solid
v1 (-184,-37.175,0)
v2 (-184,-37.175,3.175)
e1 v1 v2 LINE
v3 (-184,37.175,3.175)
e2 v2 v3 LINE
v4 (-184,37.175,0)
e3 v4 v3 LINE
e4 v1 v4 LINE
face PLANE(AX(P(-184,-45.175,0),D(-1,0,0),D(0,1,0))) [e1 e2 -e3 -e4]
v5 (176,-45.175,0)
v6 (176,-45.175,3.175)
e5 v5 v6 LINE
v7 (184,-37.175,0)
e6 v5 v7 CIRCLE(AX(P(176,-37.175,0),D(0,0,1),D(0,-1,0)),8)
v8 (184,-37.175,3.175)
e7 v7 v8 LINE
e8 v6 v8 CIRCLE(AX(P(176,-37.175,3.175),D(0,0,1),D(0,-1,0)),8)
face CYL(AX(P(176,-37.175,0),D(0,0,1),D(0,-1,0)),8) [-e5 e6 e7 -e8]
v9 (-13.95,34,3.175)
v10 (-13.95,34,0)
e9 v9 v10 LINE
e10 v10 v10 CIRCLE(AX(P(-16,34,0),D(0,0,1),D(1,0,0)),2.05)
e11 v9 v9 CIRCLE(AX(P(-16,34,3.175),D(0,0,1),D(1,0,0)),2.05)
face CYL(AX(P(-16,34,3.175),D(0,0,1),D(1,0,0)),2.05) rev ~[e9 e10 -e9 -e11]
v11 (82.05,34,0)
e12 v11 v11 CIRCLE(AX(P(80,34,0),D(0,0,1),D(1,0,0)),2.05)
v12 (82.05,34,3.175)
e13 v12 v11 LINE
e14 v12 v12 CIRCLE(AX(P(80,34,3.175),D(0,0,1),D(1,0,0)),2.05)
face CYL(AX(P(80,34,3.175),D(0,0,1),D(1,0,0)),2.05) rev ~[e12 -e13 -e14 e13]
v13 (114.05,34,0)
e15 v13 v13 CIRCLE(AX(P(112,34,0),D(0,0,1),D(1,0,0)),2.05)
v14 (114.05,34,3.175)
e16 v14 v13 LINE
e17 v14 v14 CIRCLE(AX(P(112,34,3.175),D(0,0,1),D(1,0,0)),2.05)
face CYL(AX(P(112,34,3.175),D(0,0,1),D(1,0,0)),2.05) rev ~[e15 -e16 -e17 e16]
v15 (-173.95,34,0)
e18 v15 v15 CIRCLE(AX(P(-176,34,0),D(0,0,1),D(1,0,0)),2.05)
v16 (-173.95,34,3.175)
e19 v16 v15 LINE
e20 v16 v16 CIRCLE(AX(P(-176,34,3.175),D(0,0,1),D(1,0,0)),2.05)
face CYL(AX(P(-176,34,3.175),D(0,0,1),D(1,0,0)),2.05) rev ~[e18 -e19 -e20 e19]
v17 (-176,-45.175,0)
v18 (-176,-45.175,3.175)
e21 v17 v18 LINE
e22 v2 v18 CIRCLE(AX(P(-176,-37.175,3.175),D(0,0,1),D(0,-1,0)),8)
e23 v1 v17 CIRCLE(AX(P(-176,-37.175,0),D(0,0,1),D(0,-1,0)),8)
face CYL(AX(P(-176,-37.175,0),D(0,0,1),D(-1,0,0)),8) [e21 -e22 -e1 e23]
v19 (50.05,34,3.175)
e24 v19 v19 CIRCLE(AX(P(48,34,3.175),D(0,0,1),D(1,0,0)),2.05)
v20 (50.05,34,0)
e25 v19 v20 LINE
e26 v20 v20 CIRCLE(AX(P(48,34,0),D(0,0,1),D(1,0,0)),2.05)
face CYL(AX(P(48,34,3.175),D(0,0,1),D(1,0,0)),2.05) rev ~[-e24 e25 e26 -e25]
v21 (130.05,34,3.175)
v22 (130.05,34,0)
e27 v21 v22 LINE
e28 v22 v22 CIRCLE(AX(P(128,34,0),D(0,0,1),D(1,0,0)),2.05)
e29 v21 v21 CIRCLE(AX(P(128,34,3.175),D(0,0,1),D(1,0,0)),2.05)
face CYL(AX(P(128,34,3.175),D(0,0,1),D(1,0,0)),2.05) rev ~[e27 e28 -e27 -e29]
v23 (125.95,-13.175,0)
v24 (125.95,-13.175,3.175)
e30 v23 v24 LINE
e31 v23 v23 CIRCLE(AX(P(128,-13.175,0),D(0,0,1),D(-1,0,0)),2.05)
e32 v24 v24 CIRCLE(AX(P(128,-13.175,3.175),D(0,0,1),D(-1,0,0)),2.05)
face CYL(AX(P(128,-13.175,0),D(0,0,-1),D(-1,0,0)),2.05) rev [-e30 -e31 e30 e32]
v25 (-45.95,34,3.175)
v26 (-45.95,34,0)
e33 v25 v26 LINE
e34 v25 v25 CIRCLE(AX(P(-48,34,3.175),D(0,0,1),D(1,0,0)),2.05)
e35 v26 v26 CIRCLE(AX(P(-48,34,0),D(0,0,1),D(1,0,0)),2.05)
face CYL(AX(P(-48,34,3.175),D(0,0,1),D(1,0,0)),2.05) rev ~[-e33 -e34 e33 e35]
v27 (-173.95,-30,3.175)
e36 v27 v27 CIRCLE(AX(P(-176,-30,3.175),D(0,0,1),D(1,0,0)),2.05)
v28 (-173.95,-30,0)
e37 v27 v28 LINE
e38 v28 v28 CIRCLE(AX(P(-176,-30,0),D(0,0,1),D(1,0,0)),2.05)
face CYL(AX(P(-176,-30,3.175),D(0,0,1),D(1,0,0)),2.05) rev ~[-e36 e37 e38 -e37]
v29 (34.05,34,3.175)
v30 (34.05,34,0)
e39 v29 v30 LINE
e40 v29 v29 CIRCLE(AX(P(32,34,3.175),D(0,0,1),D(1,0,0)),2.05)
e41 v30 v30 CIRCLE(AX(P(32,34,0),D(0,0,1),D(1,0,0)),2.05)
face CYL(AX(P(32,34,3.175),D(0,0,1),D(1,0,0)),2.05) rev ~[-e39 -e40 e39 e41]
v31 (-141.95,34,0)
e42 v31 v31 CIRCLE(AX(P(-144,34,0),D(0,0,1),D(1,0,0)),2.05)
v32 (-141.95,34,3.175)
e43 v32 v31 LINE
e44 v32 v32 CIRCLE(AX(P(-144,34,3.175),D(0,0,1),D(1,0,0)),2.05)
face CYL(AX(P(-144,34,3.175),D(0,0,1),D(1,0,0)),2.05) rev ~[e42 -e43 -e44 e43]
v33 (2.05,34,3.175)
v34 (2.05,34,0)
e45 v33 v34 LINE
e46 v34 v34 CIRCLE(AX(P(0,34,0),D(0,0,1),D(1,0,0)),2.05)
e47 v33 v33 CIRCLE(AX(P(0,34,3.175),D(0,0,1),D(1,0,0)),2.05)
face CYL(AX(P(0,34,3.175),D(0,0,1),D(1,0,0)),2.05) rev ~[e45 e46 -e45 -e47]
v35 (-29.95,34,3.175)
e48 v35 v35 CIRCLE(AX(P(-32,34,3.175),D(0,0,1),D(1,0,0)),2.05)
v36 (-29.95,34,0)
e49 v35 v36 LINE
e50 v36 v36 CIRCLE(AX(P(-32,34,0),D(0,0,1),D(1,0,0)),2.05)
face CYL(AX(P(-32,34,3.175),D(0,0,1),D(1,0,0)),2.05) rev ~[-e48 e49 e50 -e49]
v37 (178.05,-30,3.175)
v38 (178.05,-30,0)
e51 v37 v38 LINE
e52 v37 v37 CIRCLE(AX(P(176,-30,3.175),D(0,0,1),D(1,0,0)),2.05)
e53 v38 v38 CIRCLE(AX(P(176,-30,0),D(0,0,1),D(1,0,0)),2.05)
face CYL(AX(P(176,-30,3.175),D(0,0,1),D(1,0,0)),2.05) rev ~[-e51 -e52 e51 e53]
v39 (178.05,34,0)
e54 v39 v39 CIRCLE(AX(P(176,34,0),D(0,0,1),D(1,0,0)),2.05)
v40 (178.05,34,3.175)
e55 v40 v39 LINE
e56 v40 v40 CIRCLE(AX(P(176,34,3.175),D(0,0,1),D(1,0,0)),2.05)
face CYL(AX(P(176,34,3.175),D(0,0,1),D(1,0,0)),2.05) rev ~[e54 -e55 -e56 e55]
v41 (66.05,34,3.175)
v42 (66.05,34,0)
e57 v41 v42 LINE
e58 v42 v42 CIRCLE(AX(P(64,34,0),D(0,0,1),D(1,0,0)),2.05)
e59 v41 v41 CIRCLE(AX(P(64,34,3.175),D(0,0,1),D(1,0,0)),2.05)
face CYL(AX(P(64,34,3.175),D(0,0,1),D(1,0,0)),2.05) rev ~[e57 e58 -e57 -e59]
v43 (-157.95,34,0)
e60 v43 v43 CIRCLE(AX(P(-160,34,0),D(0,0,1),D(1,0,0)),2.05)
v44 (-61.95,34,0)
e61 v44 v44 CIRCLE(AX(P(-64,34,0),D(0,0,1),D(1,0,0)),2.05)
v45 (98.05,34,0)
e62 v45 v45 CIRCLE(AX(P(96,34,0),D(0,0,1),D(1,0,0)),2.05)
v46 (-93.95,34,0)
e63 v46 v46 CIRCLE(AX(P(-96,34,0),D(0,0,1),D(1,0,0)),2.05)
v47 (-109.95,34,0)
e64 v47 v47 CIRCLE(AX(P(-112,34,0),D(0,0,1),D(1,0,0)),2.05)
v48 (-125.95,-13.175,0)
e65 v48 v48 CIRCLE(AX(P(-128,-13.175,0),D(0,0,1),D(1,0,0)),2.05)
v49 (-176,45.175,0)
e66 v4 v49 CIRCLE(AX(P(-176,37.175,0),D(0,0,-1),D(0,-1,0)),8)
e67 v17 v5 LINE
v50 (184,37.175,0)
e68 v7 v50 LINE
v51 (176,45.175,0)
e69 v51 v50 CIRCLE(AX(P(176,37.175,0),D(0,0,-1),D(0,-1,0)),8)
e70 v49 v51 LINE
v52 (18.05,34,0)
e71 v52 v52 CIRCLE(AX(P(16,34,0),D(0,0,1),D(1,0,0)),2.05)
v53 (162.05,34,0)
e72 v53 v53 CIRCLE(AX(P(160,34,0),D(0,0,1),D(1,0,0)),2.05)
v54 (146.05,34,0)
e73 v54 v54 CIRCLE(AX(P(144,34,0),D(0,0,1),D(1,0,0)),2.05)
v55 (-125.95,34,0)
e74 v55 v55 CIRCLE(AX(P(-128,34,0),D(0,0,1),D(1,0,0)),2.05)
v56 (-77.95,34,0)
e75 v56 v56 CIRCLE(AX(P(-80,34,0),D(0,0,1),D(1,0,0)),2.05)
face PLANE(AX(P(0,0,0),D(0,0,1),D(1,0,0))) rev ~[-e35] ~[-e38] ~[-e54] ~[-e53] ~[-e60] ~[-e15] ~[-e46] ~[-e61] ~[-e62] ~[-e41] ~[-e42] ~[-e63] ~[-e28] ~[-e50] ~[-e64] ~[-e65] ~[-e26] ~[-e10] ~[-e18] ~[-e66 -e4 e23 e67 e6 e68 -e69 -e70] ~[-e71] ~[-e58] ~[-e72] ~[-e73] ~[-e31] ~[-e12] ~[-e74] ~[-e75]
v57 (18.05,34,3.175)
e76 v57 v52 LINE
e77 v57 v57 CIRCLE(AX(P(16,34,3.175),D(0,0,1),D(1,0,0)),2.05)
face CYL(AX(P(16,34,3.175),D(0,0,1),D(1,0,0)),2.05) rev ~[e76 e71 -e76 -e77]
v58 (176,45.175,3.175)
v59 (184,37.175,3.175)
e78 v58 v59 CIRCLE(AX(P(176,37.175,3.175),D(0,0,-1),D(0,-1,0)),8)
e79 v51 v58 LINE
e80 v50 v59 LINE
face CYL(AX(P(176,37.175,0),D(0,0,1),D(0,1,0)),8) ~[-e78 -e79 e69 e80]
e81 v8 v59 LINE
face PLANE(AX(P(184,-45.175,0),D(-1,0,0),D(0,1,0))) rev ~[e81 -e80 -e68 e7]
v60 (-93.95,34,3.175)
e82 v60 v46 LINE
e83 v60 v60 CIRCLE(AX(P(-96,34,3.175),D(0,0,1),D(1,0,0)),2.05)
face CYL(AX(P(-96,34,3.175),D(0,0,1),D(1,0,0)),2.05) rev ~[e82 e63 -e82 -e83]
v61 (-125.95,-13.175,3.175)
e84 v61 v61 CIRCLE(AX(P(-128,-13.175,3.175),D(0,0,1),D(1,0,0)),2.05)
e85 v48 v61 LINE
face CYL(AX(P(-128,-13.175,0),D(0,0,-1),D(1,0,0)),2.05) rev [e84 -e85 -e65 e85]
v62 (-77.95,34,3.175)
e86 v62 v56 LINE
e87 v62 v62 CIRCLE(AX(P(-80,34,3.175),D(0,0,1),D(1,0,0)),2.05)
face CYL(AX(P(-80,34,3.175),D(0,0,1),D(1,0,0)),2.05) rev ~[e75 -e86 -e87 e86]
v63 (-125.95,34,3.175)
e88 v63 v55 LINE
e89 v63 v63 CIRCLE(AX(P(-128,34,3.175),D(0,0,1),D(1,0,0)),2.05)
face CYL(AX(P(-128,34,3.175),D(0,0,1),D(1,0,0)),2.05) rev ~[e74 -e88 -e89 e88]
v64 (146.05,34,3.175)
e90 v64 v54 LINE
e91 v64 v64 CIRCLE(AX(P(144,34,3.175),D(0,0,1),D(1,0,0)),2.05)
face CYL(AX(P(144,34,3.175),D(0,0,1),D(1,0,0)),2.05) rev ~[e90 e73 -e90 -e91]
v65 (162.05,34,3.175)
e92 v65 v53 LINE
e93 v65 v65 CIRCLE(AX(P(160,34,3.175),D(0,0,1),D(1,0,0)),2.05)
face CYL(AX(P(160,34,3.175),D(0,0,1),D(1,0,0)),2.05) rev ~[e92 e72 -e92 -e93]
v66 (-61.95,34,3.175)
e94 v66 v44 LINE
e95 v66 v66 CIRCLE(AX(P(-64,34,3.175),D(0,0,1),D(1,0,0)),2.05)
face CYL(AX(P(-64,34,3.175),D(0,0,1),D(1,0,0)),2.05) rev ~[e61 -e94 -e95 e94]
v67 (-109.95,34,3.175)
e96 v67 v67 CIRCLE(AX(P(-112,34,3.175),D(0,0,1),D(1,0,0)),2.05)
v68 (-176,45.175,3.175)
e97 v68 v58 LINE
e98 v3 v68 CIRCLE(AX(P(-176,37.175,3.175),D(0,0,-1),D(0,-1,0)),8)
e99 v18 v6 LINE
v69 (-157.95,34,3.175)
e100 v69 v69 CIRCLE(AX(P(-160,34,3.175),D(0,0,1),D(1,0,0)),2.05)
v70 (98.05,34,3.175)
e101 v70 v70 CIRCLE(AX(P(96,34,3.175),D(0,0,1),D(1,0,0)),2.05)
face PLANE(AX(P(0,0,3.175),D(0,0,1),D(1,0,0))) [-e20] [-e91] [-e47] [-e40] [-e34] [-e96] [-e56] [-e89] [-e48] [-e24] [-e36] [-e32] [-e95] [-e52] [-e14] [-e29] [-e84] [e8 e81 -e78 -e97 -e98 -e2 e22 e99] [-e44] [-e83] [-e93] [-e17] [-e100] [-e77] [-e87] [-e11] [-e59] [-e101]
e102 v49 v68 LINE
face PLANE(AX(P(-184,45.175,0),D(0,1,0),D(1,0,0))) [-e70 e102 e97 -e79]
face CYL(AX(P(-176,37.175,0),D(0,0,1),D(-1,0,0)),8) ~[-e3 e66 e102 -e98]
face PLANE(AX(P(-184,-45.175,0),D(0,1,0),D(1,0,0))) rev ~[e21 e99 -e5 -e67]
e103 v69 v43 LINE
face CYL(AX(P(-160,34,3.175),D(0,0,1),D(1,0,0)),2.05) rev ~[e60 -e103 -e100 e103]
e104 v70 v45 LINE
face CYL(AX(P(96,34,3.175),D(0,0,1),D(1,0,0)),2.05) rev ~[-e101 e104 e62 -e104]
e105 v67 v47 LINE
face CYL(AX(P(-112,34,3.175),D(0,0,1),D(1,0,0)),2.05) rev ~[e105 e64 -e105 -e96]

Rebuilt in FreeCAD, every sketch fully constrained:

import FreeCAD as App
import Part
import Sketcher


def edges_at(feature, points):
    """Names of the edges that pass closest to the given points."""
    edges = feature.Shape.Edges
    near = lambda p: min(range(len(edges)), key=lambda i: edges[i].distToShape(Part.Vertex(*p))[0])
    return sorted({f"Edge{near(p) + 1}" for p in points})


def add_polygon(sketch, points):
    """Adds a closed chain of lines whose ends are joined by coincident constraints."""
    first, n = sketch.GeometryCount, len(points)
    for a, b in zip(points, points[1:] + points[:1]):
        sketch.addGeometry(Part.LineSegment(App.Vector(*a, 0), App.Vector(*b, 0)), False)
    for i in range(n):
        sketch.addConstraint(Sketcher.Constraint("Coincident", first + i, 2, first + (i + 1) % n, 1))

doc = App.newDocument("Part")
body = doc.addObject("PartDesign::Body", "Body")

# Sketch on XY plane
sketch1 = doc.addObject("Sketcher::SketchObject", "Sketch")
body.addObject(sketch1)
sketch1.AttachmentSupport = (doc.XY_Plane, [""])
sketch1.MapMode = "FlatFace"
add_polygon(sketch1, [(-184, 45.2), (-184, -45.2), (184, -45.2), (184, 45.2)])  # lines 0-3
sketch1.addGeometry(Part.Circle(App.Vector(-128, -13.2, 0), App.Vector(0, 0, 1), 2), False)  # 4
sketch1.addGeometry(Part.Circle(App.Vector(128, -13.2, 0), App.Vector(0, 0, 1), 2), False)  # 5
sketch1.addConstraint([
    Sketcher.Constraint("Vertical", 0),
    Sketcher.Constraint("Horizontal", 1),
    Sketcher.Constraint("Vertical", 2),
    Sketcher.Constraint("Horizontal", 3),
    Sketcher.Constraint("Equal", 4, 5),
    Sketcher.Constraint("Symmetric", 0, 2, 2, 2, -1, 1),
    Sketcher.Constraint("Symmetric", 4, 3, 5, 3, -2),
    Sketcher.Constraint("Diameter", 4, 4.1),
    Sketcher.Constraint("DistanceX", 1, 1, 1, 2, 368.0),
    Sketcher.Constraint("DistanceX", 4, 3, -1, 1, 128.0),
    Sketcher.Constraint("DistanceY", 0, 2, 4, 3, 32.0),
    Sketcher.Constraint("DistanceY", 0, 2, 0, 1, 90.35),
])
pad1 = doc.addObject("PartDesign::Pad", "Pad")
body.addObject(pad1)
pad1.Profile = sketch1
pad1.Length = 3.175

# Sketch on XY plane
sketch2 = doc.addObject("Sketcher::SketchObject", "Sketch001")
body.addObject(sketch2)
sketch2.AttachmentSupport = (doc.XY_Plane, [""])
sketch2.MapMode = "FlatFace"
sketch2.AttachmentOffset = App.Placement(App.Vector(0, 0, 3.175), App.Rotation())
sketch2.addGeometry([
    Part.Circle(App.Vector(-176, 34, 0), App.Vector(0, 0, 1), 2),  # 0
    Part.Circle(App.Vector(-160, 34, 0), App.Vector(0, 0, 1), 2),  # 1
    Part.Circle(App.Vector(-144, 34, 0), App.Vector(0, 0, 1), 2),  # 2
    Part.Circle(App.Vector(-128, 34, 0), App.Vector(0, 0, 1), 2),  # 3
    Part.Circle(App.Vector(-112, 34, 0), App.Vector(0, 0, 1), 2),  # 4
    Part.Circle(App.Vector(-96, 34, 0), App.Vector(0, 0, 1), 2),  # 5
    Part.Circle(App.Vector(-80, 34, 0), App.Vector(0, 0, 1), 2),  # 6
    Part.Circle(App.Vector(-64, 34, 0), App.Vector(0, 0, 1), 2),  # 7
    Part.Circle(App.Vector(-48, 34, 0), App.Vector(0, 0, 1), 2),  # 8
    Part.Circle(App.Vector(-32, 34, 0), App.Vector(0, 0, 1), 2),  # 9
    Part.Circle(App.Vector(-16, 34, 0), App.Vector(0, 0, 1), 2),  # 10
    Part.Circle(App.Vector(0, 34, 0), App.Vector(0, 0, 1), 2),  # 11
    Part.Circle(App.Vector(16, 34, 0), App.Vector(0, 0, 1), 2),  # 12
    Part.Circle(App.Vector(32, 34, 0), App.Vector(0, 0, 1), 2),  # 13
    Part.Circle(App.Vector(48, 34, 0), App.Vector(0, 0, 1), 2),  # 14
    Part.Circle(App.Vector(64, 34, 0), App.Vector(0, 0, 1), 2),  # 15
    Part.Circle(App.Vector(80, 34, 0), App.Vector(0, 0, 1), 2),  # 16
    Part.Circle(App.Vector(96, 34, 0), App.Vector(0, 0, 1), 2),  # 17
    Part.Circle(App.Vector(112, 34, 0), App.Vector(0, 0, 1), 2),  # 18
    Part.Circle(App.Vector(128, 34, 0), App.Vector(0, 0, 1), 2),  # 19
    Part.Circle(App.Vector(144, 34, 0), App.Vector(0, 0, 1), 2),  # 20
    Part.Circle(App.Vector(160, 34, 0), App.Vector(0, 0, 1), 2),  # 21
    Part.Circle(App.Vector(176, 34, 0), App.Vector(0, 0, 1), 2),  # 22
    Part.Circle(App.Vector(176, -30, 0), App.Vector(0, 0, 1), 2),  # 23
    Part.Circle(App.Vector(-176, -30, 0), App.Vector(0, 0, 1), 2),  # 24
], False)
sketch2.addConstraint([
    Sketcher.Constraint("Equal", 0, 1),
    Sketcher.Constraint("Equal", 1, 2),
    Sketcher.Constraint("Equal", 2, 3),
    Sketcher.Constraint("Equal", 3, 4),
    Sketcher.Constraint("Equal", 4, 5),
    Sketcher.Constraint("Equal", 5, 6),
    Sketcher.Constraint("Equal", 6, 7),
    Sketcher.Constraint("Equal", 7, 8),
    Sketcher.Constraint("Equal", 8, 9),
    Sketcher.Constraint("Equal", 9, 10),
    Sketcher.Constraint("Equal", 10, 11),
    Sketcher.Constraint("Equal", 11, 12),
    Sketcher.Constraint("Equal", 12, 13),
    Sketcher.Constraint("Equal", 13, 14),
    Sketcher.Constraint("Equal", 14, 15),
    Sketcher.Constraint("Equal", 15, 16),
    Sketcher.Constraint("Equal", 16, 17),
    Sketcher.Constraint("Equal", 17, 18),
    Sketcher.Constraint("Equal", 18, 19),
    Sketcher.Constraint("Equal", 19, 20),
    Sketcher.Constraint("Equal", 20, 21),
    Sketcher.Constraint("Equal", 21, 22),
    Sketcher.Constraint("Equal", 22, 23),
    Sketcher.Constraint("Equal", 23, 24),
    Sketcher.Constraint("Symmetric", 10, 3, 12, 3, -2),
    Sketcher.Constraint("Symmetric", 9, 3, 13, 3, -2),
    Sketcher.Constraint("Symmetric", 8, 3, 14, 3, -2),
    Sketcher.Constraint("Symmetric", 7, 3, 15, 3, -2),
    Sketcher.Constraint("Symmetric", 6, 3, 16, 3, -2),
    Sketcher.Constraint("Symmetric", 5, 3, 17, 3, -2),
    Sketcher.Constraint("Symmetric", 4, 3, 18, 3, -2),
    Sketcher.Constraint("Symmetric", 3, 3, 19, 3, -2),
    Sketcher.Constraint("Symmetric", 2, 3, 20, 3, -2),
    Sketcher.Constraint("Symmetric", 1, 3, 21, 3, -2),
    Sketcher.Constraint("Symmetric", 0, 3, 22, 3, -2),
    Sketcher.Constraint("Symmetric", 23, 3, 24, 3, -2),
    Sketcher.Constraint("PointOnObject", 11, 3, -2),
    Sketcher.Constraint("Horizontal", 0, 3, 1, 3),
    Sketcher.Constraint("Horizontal", 1, 3, 2, 3),
    Sketcher.Constraint("Horizontal", 2, 3, 3, 3),
    Sketcher.Constraint("Horizontal", 3, 3, 4, 3),
    Sketcher.Constraint("Horizontal", 4, 3, 5, 3),
    Sketcher.Constraint("Horizontal", 5, 3, 6, 3),
    Sketcher.Constraint("Horizontal", 6, 3, 7, 3),
    Sketcher.Constraint("Horizontal", 7, 3, 8, 3),
    Sketcher.Constraint("Horizontal", 8, 3, 9, 3),
    Sketcher.Constraint("Horizontal", 9, 3, 10, 3),
    Sketcher.Constraint("Horizontal", 10, 3, 11, 3),
    Sketcher.Constraint("Vertical", 22, 3, 23, 3),
    Sketcher.Constraint("Diameter", 0, 4.1),
    Sketcher.Constraint("DistanceX", 0, 3, -1, 1, 176.0),
    Sketcher.Constraint("DistanceY", -1, 1, 0, 3, 34.0),
    Sketcher.Constraint("DistanceX", 1, 3, -1, 1, 160.0),
    Sketcher.Constraint("DistanceX", 2, 3, -1, 1, 144.0),
    Sketcher.Constraint("DistanceX", 3, 3, -1, 1, 128.0),
    Sketcher.Constraint("DistanceX", 4, 3, -1, 1, 112.0),
    Sketcher.Constraint("DistanceX", 5, 3, -1, 1, 96.0),
    Sketcher.Constraint("DistanceX", 6, 3, -1, 1, 80.0),
    Sketcher.Constraint("DistanceX", 7, 3, -1, 1, 64.0),
    Sketcher.Constraint("DistanceX", 8, 3, -1, 1, 48.0),
    Sketcher.Constraint("DistanceX", 9, 3, -1, 1, 32.0),
    Sketcher.Constraint("DistanceX", 10, 3, -1, 1, 16.0),
    Sketcher.Constraint("DistanceY", 23, 3, -1, 1, 30.0),
])
pocket1 = doc.addObject("PartDesign::Pocket", "Pocket")
body.addObject(pocket1)
pocket1.Profile = sketch2
pocket1.Length = 3.18
doc.recompute()

fillet = doc.addObject("PartDesign::Fillet", "Fillet")
body.addObject(fillet)
fillet.Base = (pocket1, edges_at(pocket1, [
    (-184, 45.175, 1.587),
    (184, 45.175, 1.587),
    (184, -45.175, 1.587),
    (-184, -45.175, 1.587),
]))
fillet.Radius = 8

doc.recompute()
